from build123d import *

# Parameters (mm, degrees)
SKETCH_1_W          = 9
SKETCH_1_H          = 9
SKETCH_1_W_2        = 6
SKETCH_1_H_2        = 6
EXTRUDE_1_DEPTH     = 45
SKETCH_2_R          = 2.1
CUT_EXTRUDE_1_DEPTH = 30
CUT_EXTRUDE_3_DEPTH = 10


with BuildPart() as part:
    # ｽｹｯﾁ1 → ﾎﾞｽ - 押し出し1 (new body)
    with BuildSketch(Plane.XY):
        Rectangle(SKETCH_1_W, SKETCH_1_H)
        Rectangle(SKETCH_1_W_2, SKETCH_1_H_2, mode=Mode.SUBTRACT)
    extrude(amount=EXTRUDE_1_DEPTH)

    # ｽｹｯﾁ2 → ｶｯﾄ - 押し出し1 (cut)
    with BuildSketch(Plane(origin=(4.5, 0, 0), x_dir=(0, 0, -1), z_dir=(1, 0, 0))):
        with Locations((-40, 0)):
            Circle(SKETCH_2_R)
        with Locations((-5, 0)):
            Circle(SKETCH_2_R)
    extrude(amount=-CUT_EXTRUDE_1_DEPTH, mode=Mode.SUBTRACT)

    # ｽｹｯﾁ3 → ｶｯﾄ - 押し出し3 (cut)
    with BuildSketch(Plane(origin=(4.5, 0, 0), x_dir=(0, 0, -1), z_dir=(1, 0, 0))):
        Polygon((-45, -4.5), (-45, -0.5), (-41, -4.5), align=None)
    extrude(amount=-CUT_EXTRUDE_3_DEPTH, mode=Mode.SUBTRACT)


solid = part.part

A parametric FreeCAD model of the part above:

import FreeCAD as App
import Part
import Sketcher
from FreeCAD import Vector


def add_polygon(sketch, points):
    """Adds a closed chain of lines whose ends are joined by coincident constraints."""
    first, n = sketch.GeometryCount, len(points)
    for a, b in zip(points, points[1:] + points[:1]):
        sketch.addGeometry(Part.LineSegment(App.Vector(*a, 0), App.Vector(*b, 0)), False)
    for i in range(n):
        sketch.addConstraint(Sketcher.Constraint("Coincident", first + i, 2, first + (i + 1) % n, 1))

doc = App.newDocument("Part")
params = doc.addObject("Spreadsheet::Sheet", "Params")
for row, (alias, value) in enumerate([
    ("sketch1_width", "9 mm"),
    ("sketch1_width2", "6 mm"),
    ("pad1_length", "45 mm"),
    ("sketch2_diameter", "4.2 mm"),
    ("pocket1_length", "30 mm"),
    ("sketch3_width", "4 mm"),
    ("pocket2_length", "10 mm"),
], start=1):
    params.set(f"A{row}", alias)
    params.set(f"B{row}", "=" + value)
    params.setAlias(f"B{row}", alias)

body = doc.addObject("PartDesign::Body", "Body")

sketch1 = body.newObject("Sketcher::SketchObject", "Sketch")
sketch1.AttachmentSupport = (doc.getObject("XY_Plane"), [""])
sketch1.MapMode = "FlatFace"
add_polygon(sketch1, [(-4, 4), (-4, -4), (4, -4), (4, 4)])
add_polygon(sketch1, [(3, -3), (-3, -3), (-3, 3), (3, 3)])
sketch1.addConstraint([
    Sketcher.Constraint("Vertical", 0),
    Sketcher.Constraint("Horizontal", 1),
    Sketcher.Constraint("Vertical", 2),
    Sketcher.Constraint("Horizontal", 3),
    Sketcher.Constraint("Horizontal", 4),
    Sketcher.Constraint("Vertical", 5),
    Sketcher.Constraint("Horizontal", 6),
    Sketcher.Constraint("Vertical", 7),
    Sketcher.Constraint("Symmetric", 0, 2, 2, 2, -1, 1),
    Sketcher.Constraint("Symmetric", 4, 2, 6, 2, -1, 1),
    Sketcher.Constraint("Equal", 3, 0),
    Sketcher.Constraint("Equal", 6, 5),
    Sketcher.Constraint("DistanceX", 1, 1, 1, 2, 9.0),
    Sketcher.Constraint("DistanceX", 4, 2, 4, 1, 6.0),
])
sketch1.setExpression("Constraints[20]", "Params.sketch1_width")
sketch1.setExpression("Constraints[21]", "Params.sketch1_width2")
pad1 = body.newObject("PartDesign::Pad", "Pad")
pad1.Profile = sketch1
pad1.setExpression("Length", "Params.pad1_length")

sketch2 = body.newObject("Sketcher::SketchObject", "Sketch001")
sketch2.AttachmentSupport = (doc.getObject("YZ_Plane"), [""])
sketch2.MapMode = "FlatFace"
sketch2.AttachmentOffset = App.Placement(Vector(0, 0, 4.5), App.Rotation())
sketch2.addGeometry([
    Part.Circle(Vector(0, 40, 0), Vector(0, 0, 1), 2.1),
    Part.Circle(Vector(0, 5, 0), Vector(0, 0, 1), 2.1),
], False)
sketch2.addConstraint([
    Sketcher.Constraint("Equal", 0, 1),
    Sketcher.Constraint("PointOnObject", 0, 3, -2),
    Sketcher.Constraint("PointOnObject", 1, 3, -2),
    Sketcher.Constraint("Diameter", 0, 4.2),
    Sketcher.Constraint("DistanceY", -1, 1, 0, 3, 40.0),
    Sketcher.Constraint("DistanceY", -1, 1, 1, 3, 5.0),
])
sketch2.setExpression("Constraints[3]", "Params.sketch2_diameter")
pocket1 = body.newObject("PartDesign::Pocket", "Pocket")
pocket1.Profile = sketch2
pocket1.setExpression("Length", "Params.pocket1_length")

sketch3 = body.newObject("Sketcher::SketchObject", "Sketch002")
sketch3.AttachmentSupport = (doc.getObject("YZ_Plane"), [""])
sketch3.MapMode = "FlatFace"
sketch3.AttachmentOffset = App.Placement(Vector(0, 0, 4.5), App.Rotation())
add_polygon(sketch3, [(-0.5, 45), (-4.5, 45), (-4.5, 41)])
sketch3.addConstraint([
    Sketcher.Constraint("Horizontal", 0),
    Sketcher.Constraint("Vertical", 1),
    Sketcher.Constraint("Equal", 0, 1),
    Sketcher.Constraint("DistanceX", 0, 2, 0, 1, 4.0),
    Sketcher.Constraint("DistanceY", -1, 1, 0, 2, 45.0),
    Sketcher.Constraint("DistanceX", 0, 2, -1, 1, 4.5),
])
sketch3.setExpression("Constraints[6]", "Params.sketch3_width")
pocket2 = body.newObject("PartDesign::Pocket", "Pocket001")
pocket2.Profile = sketch3
pocket2.setExpression("Length", "Params.pocket2_length")

doc.recompute()
